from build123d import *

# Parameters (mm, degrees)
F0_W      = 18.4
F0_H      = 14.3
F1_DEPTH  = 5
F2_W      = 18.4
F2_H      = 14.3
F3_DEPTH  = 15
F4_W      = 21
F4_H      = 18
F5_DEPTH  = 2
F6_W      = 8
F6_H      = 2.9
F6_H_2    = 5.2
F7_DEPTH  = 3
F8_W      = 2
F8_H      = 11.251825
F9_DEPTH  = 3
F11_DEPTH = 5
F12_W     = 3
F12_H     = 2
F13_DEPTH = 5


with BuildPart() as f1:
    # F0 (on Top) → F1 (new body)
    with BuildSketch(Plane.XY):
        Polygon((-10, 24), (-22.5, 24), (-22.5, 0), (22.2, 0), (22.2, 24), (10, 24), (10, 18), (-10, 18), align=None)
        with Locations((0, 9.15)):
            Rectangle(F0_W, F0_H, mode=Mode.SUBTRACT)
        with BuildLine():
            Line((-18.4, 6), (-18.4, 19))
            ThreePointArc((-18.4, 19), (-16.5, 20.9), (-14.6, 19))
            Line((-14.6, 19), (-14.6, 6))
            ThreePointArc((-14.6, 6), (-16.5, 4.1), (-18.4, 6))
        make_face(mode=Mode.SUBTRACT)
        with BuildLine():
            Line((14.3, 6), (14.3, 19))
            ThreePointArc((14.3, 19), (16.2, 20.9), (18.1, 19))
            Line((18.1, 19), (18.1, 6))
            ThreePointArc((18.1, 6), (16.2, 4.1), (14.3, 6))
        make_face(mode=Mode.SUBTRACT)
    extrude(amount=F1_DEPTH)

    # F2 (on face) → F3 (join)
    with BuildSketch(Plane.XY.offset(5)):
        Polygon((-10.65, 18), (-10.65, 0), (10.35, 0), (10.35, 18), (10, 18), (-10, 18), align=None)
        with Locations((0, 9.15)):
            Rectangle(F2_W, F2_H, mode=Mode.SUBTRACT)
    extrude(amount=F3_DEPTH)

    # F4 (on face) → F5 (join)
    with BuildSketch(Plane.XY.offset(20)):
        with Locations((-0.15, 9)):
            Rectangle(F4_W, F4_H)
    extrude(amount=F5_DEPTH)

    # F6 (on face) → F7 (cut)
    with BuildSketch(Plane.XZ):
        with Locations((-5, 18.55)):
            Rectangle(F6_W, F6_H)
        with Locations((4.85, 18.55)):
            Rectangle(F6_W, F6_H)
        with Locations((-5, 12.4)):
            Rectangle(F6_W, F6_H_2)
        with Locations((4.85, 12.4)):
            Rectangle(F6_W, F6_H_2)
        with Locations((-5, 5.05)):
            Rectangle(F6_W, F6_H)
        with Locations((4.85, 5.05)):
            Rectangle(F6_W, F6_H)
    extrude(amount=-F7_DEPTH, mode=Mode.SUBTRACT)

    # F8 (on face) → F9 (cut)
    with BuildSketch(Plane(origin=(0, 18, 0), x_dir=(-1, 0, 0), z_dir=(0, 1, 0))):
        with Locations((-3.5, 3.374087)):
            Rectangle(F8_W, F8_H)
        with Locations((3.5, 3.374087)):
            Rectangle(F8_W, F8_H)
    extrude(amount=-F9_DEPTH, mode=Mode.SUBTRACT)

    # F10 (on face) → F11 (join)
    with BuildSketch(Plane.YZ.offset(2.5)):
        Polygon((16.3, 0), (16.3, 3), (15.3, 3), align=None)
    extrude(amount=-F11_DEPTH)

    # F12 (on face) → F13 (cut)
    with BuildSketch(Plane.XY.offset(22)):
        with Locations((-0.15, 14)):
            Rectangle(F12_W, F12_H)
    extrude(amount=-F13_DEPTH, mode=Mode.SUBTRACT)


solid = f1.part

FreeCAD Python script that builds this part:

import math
import FreeCAD as App
import Part
import Sketcher
Q = App.Units.Quantity

doc = App.newDocument("Part")
body = doc.addObject("PartDesign::Body", "Body")

# Sketch on XY plane
sketch1 = doc.addObject("Sketcher::SketchObject", "Sketch")
body.addObject(sketch1)
sketch1.AttachmentSupport = (doc.XY_Plane, [""])
sketch1.MapMode = "FlatFace"
sketch1.addGeometry([
    Part.LineSegment(App.Vector(-10, 24, 0), App.Vector(-22.5, 24, 0)),  # 0
    Part.LineSegment(App.Vector(-22.5, 24, 0), App.Vector(-22.5, 0, 0)),  # 1
    Part.LineSegment(App.Vector(-22.5, 0, 0), App.Vector(22.2, 0, 0)),  # 2
    Part.LineSegment(App.Vector(22.2, 0, 0), App.Vector(22.2, 24, 0)),  # 3
    Part.LineSegment(App.Vector(22.2, 24, 0), App.Vector(10, 24, 0)),  # 4
    Part.LineSegment(App.Vector(10, 24, 0), App.Vector(10, 18, 0)),  # 5
    Part.LineSegment(App.Vector(10, 18, 0), App.Vector(-10, 18, 0)),  # 6
    Part.LineSegment(App.Vector(-10, 18, 0), App.Vector(-10, 24, 0)),  # 7
    Part.LineSegment(App.Vector(9.2, 2, 0), App.Vector(-9.2, 2, 0)),  # 8
    Part.LineSegment(App.Vector(-9.2, 2, 0), App.Vector(-9.2, 16.3, 0)),  # 9
    Part.LineSegment(App.Vector(-9.2, 16.3, 0), App.Vector(9.2, 16.3, 0)),  # 10
    Part.LineSegment(App.Vector(9.2, 16.3, 0), App.Vector(9.2, 2, 0)),  # 11
    Part.ArcOfCircle(Part.Circle(App.Vector(-16.5, 6, 0), App.Vector(0, 0, 1), 1.9), math.radians(180), math.radians(360)),  # 12
    Part.LineSegment(App.Vector(-18.4, 6, 0), App.Vector(-18.4, 19, 0)),  # 13
    Part.ArcOfCircle(Part.Circle(App.Vector(-16.5, 19, 0), App.Vector(0, 0, 1), 1.9), math.radians(0), math.radians(180)),  # 14
    Part.LineSegment(App.Vector(-14.6, 19, 0), App.Vector(-14.6, 6, 0)),  # 15
    Part.ArcOfCircle(Part.Circle(App.Vector(16.2, 6, 0), App.Vector(0, 0, 1), 1.9), math.radians(180), math.radians(360)),  # 16
    Part.LineSegment(App.Vector(14.3, 6, 0), App.Vector(14.3, 19, 0)),  # 17
    Part.ArcOfCircle(Part.Circle(App.Vector(16.2, 19, 0), App.Vector(0, 0, 1), 1.9), math.radians(0), math.radians(180)),  # 18
    Part.LineSegment(App.Vector(18.1, 19, 0), App.Vector(18.1, 6, 0)),  # 19
], False)
sketch1.addConstraint([
    Sketcher.Constraint("Coincident", 0, 2, 1, 1),
    Sketcher.Constraint("Coincident", 1, 2, 2, 1),
    Sketcher.Constraint("Coincident", 2, 2, 3, 1),
    Sketcher.Constraint("Coincident", 3, 2, 4, 1),
    Sketcher.Constraint("Coincident", 4, 2, 5, 1),
    Sketcher.Constraint("Coincident", 5, 2, 6, 1),
    Sketcher.Constraint("Coincident", 6, 2, 7, 1),
    Sketcher.Constraint("Coincident", 7, 2, 0, 1),
    Sketcher.Constraint("Coincident", 8, 2, 9, 1),
    Sketcher.Constraint("Coincident", 9, 2, 10, 1),
    Sketcher.Constraint("Coincident", 10, 2, 11, 1),
    Sketcher.Constraint("Coincident", 11, 2, 8, 1),
    Sketcher.Constraint("Tangent", 12, 1, 13, 1),
    Sketcher.Constraint("Tangent", 13, 2, 14, 2),
    Sketcher.Constraint("Tangent", 14, 1, 15, 1),
    Sketcher.Constraint("Tangent", 15, 2, 12, 2),
    Sketcher.Constraint("Tangent", 16, 1, 17, 1),
    Sketcher.Constraint("Tangent", 17, 2, 18, 2),
    Sketcher.Constraint("Tangent", 18, 1, 19, 1),
    Sketcher.Constraint("Tangent", 19, 2, 16, 2),
    Sketcher.Constraint("Horizontal", 0),
    Sketcher.Constraint("Vertical", 1),
    Sketcher.Constraint("Horizontal", 2),
    Sketcher.Constraint("Vertical", 3),
    Sketcher.Constraint("Horizontal", 4),
    Sketcher.Constraint("Vertical", 5),
    Sketcher.Constraint("Horizontal", 6),
    Sketcher.Constraint("Vertical", 7),
    Sketcher.Constraint("Horizontal", 8),
    Sketcher.Constraint("Vertical", 9),
    Sketcher.Constraint("Horizontal", 10),
    Sketcher.Constraint("Vertical", 11),
    Sketcher.Constraint("Vertical", 13),
    Sketcher.Constraint("Vertical", 15),
    Sketcher.Constraint("Vertical", 17),
    Sketcher.Constraint("Vertical", 19),
    Sketcher.Constraint("Equal", 14, 16),
    Sketcher.Constraint("Symmetric", 4, 2, 7, 2, -2),
    Sketcher.Constraint("PointOnObject", 1, 2, -1),
    Sketcher.Constraint("Horizontal", 12, 3, 16, 3),
    Sketcher.Constraint("Horizontal", 14, 3, 18, 3),
    Sketcher.Constraint("Radius", 12, Q("1.9 mm")),
    Sketcher.Constraint("DistanceX", 6, 2, 6, 1, Q("20 mm")),
    Sketcher.Constraint("DistanceY", 1, 2, 1, 1, Q("24 mm")),
    Sketcher.Constraint("DistanceY", 5, 2, 5, 1, Q("6 mm")),
    Sketcher.Constraint("DistanceY", 13, 1, 13, 2, Q("13 mm")),
    Sketcher.Constraint("DistanceX", 0, 2, 0, 1, Q("12.5 mm")),
    Sketcher.Constraint("DistanceX", 2, 1, 2, 2, Q("44.7 mm")),
    Sketcher.Constraint("DistanceX", 8, 2, 8, 1, Q("18.4 mm")),
    Sketcher.Constraint("DistanceY", 9, 1, 9, 2, Q("14.3 mm")),
    Sketcher.Constraint("DistanceY", -1, 1, 12, 3, Q("6 mm")),
    Sketcher.Constraint("DistanceY", -1, 1, 8, 2, Q("2 mm")),
    Sketcher.Constraint("DistanceX", 0, 2, 14, 3, Q("6 mm")),
    Sketcher.Constraint("DistanceX", 16, 3, 2, 2, Q("6 mm")),
    Sketcher.Constraint("DistanceX", 10, 2, 18, 3, Q("7 mm")),
])
pad1 = doc.addObject("PartDesign::Pad", "Pad")
body.addObject(pad1)
pad1.Profile = sketch1
pad1.Length = 5

# Sketch on XY plane
sketch2 = doc.addObject("Sketcher::SketchObject", "Sketch001")
body.addObject(sketch2)
sketch2.AttachmentSupport = (doc.XY_Plane, [""])
sketch2.MapMode = "FlatFace"
sketch2.AttachmentOffset = App.Placement(App.Vector(0, 0, 5), App.Rotation())
sketch2.addGeometry([
    Part.LineSegment(App.Vector(-11, 18, 0), App.Vector(-11, 0, 0)),  # 0
    Part.LineSegment(App.Vector(-11, 0, 0), App.Vector(10, 0, 0)),  # 1
    Part.LineSegment(App.Vector(10, 0, 0), App.Vector(10, 18, 0)),  # 2
    Part.LineSegment(App.Vector(10, 18, 0), App.Vector(-11, 18, 0)),  # 3
    Part.LineSegment(App.Vector(9, 2, 0), App.Vector(-9, 2, 0)),  # 4
    Part.LineSegment(App.Vector(-9, 2, 0), App.Vector(-9, 16, 0)),  # 5
    Part.LineSegment(App.Vector(-9, 16, 0), App.Vector(9, 16, 0)),  # 6
    Part.LineSegment(App.Vector(9, 16, 0), App.Vector(9, 2, 0)),  # 7
], False)
sketch2.addConstraint([
    Sketcher.Constraint("Coincident", 0, 2, 1, 1),
    Sketcher.Constraint("Coincident", 1, 2, 2, 1),
    Sketcher.Constraint("Coincident", 2, 2, 3, 1),
    Sketcher.Constraint("Coincident", 3, 2, 0, 1),
    Sketcher.Constraint("Coincident", 4, 2, 5, 1),
    Sketcher.Constraint("Coincident", 5, 2, 6, 1),
    Sketcher.Constraint("Coincident", 6, 2, 7, 1),
    Sketcher.Constraint("Coincident", 7, 2, 4, 1),
    Sketcher.Constraint("Vertical", 0),
    Sketcher.Constraint("Horizontal", 1),
    Sketcher.Constraint("Vertical", 2),
    Sketcher.Constraint("Horizontal", 3),
    Sketcher.Constraint("Horizontal", 4),
    Sketcher.Constraint("Vertical", 5),
    Sketcher.Constraint("Horizontal", 6),
    Sketcher.Constraint("Vertical", 7),
    Sketcher.Constraint("PointOnObject", 0, 2, -1),
    Sketcher.Constraint("DistanceX", 1, 1, 1, 2, Q("21 mm")),
    Sketcher.Constraint("DistanceY", 0, 2, 0, 1, Q("18 mm")),
    Sketcher.Constraint("DistanceX", 4, 2, 4, 1, Q("18.4 mm")),
    Sketcher.Constraint("DistanceY", 5, 1, 5, 2, Q("14.3 mm")),
    Sketcher.Constraint("DistanceY", -1, 1, 4, 2, Q("2 mm")),
    Sketcher.Constraint("DistanceX", 4, 2, -1, 1, Q("9.2 mm")),
    Sketcher.Constraint("DistanceX", 0, 2, -1, 1, Q("10.65 mm")),
])
pad2 = doc.addObject("PartDesign::Pad", "Pad001")
body.addObject(pad2)
pad2.Profile = sketch2
pad2.Length = 15

# Sketch on XY plane
sketch3 = doc.addObject("Sketcher::SketchObject", "Sketch002")
body.addObject(sketch3)
sketch3.AttachmentSupport = (doc.XY_Plane, [""])
sketch3.MapMode = "FlatFace"
sketch3.AttachmentOffset = App.Placement(App.Vector(0, 0, 20), App.Rotation())
sketch3.addGeometry([
    Part.LineSegment(App.Vector(-11, 18, 0), App.Vector(-11, 0, 0)),
    Part.LineSegment(App.Vector(-11, 0, 0), App.Vector(10, 0, 0)),
    Part.LineSegment(App.Vector(10, 0, 0), App.Vector(10, 18, 0)),
    Part.LineSegment(App.Vector(10, 18, 0), App.Vector(-11, 18, 0)),
], False)
sketch3.addConstraint([
    Sketcher.Constraint("Coincident", 0, 2, 1, 1),
    Sketcher.Constraint("Coincident", 1, 2, 2, 1),
    Sketcher.Constraint("Coincident", 2, 2, 3, 1),
    Sketcher.Constraint("Coincident", 3, 2, 0, 1),
    Sketcher.Constraint("Vertical", 0),
    Sketcher.Constraint("Horizontal", 1),
    Sketcher.Constraint("Vertical", 2),
    Sketcher.Constraint("Horizontal", 3),
    Sketcher.Constraint("PointOnObject", 0, 2, -1),
    Sketcher.Constraint("DistanceX", 1, 1, 1, 2, Q("21 mm")),
    Sketcher.Constraint("DistanceY", 0, 2, 0, 1, Q("18 mm")),
    Sketcher.Constraint("DistanceX", 0, 2, -1, 1, Q("10.65 mm")),
])
pad3 = doc.addObject("PartDesign::Pad", "Pad002")
body.addObject(pad3)
pad3.Profile = sketch3
pad3.Length = 2

# Sketch on XZ plane
sketch4 = doc.addObject("Sketcher::SketchObject", "Sketch003")
body.addObject(sketch4)
sketch4.AttachmentSupport = (doc.XZ_Plane, [""])
sketch4.MapMode = "FlatFace"
sketch4.addGeometry([
    Part.LineSegment(App.Vector(-9, 20, 0), App.Vector(-9, 17.1, 0)),  # 0
    Part.LineSegment(App.Vector(-9, 17.1, 0), App.Vector(-1, 17.1, 0)),  # 1
    Part.LineSegment(App.Vector(-1, 17.1, 0), App.Vector(-1, 20, 0)),  # 2
    Part.LineSegment(App.Vector(-1, 20, 0), App.Vector(-9, 20, 0)),  # 3
    Part.LineSegment(App.Vector(0.8, 20, 0), App.Vector(0.8, 17.1, 0)),  # 4
    Part.LineSegment(App.Vector(0.8, 17.1, 0), App.Vector(8.8, 17.1, 0)),  # 5
    Part.LineSegment(App.Vector(8.8, 17.1, 0), App.Vector(8.8, 20, 0)),  # 6
    Part.LineSegment(App.Vector(8.8, 20, 0), App.Vector(0.8, 20, 0)),  # 7
    Part.LineSegment(App.Vector(-9, 15, 0), App.Vector(-9, 9.8, 0)),  # 8
    Part.LineSegment(App.Vector(-9, 9.8, 0), App.Vector(-1, 9.8, 0)),  # 9
    Part.LineSegment(App.Vector(-1, 9.8, 0), App.Vector(-1, 15, 0)),  # 10
    Part.LineSegment(App.Vector(-1, 15, 0), App.Vector(-9, 15, 0)),  # 11
    Part.LineSegment(App.Vector(0.8, 15, 0), App.Vector(0.8, 9.8, 0)),  # 12
    Part.LineSegment(App.Vector(0.8, 9.8, 0), App.Vector(8.8, 9.8, 0)),  # 13
    Part.LineSegment(App.Vector(8.8, 9.8, 0), App.Vector(8.8, 15, 0)),  # 14
    Part.LineSegment(App.Vector(8.8, 15, 0), App.Vector(0.8, 15, 0)),  # 15
    Part.LineSegment(App.Vector(-9, 6.5, 0), App.Vector(-9, 3.6, 0)),  # 16
    Part.LineSegment(App.Vector(-9, 3.6, 0), App.Vector(-1, 3.6, 0)),  # 17
    Part.LineSegment(App.Vector(-1, 3.6, 0), App.Vector(-1, 6.5, 0)),  # 18
    Part.LineSegment(App.Vector(-1, 6.5, 0), App.Vector(-9, 6.5, 0)),  # 19
    Part.LineSegment(App.Vector(0.8, 6.5, 0), App.Vector(0.8, 3.6, 0)),  # 20
    Part.LineSegment(App.Vector(0.8, 3.6, 0), App.Vector(8.8, 3.6, 0)),  # 21
    Part.LineSegment(App.Vector(8.8, 3.6, 0), App.Vector(8.8, 6.5, 0)),  # 22
    Part.LineSegment(App.Vector(8.8, 6.5, 0), App.Vector(0.8, 6.5, 0)),  # 23
], False)
sketch4.addConstraint([
    Sketcher.Constraint("Coincident", 0, 2, 1, 1),
    Sketcher.Constraint("Coincident", 1, 2, 2, 1),
    Sketcher.Constraint("Coincident", 2, 2, 3, 1),
    Sketcher.Constraint("Coincident", 3, 2, 0, 1),
    Sketcher.Constraint("Coincident", 4, 2, 5, 1),
    Sketcher.Constraint("Coincident", 5, 2, 6, 1),
    Sketcher.Constraint("Coincident", 6, 2, 7, 1),
    Sketcher.Constraint("Coincident", 7, 2, 4, 1),
    Sketcher.Constraint("Coincident", 8, 2, 9, 1),
    Sketcher.Constraint("Coincident", 9, 2, 10, 1),
    Sketcher.Constraint("Coincident", 10, 2, 11, 1),
    Sketcher.Constraint("Coincident", 11, 2, 8, 1),
    Sketcher.Constraint("Coincident", 12, 2, 13, 1),
    Sketcher.Constraint("Coincident", 13, 2, 14, 1),
    Sketcher.Constraint("Coincident", 14, 2, 15, 1),
    Sketcher.Constraint("Coincident", 15, 2, 12, 1),
    Sketcher.Constraint("Coincident", 16, 2, 17, 1),
    Sketcher.Constraint("Coincident", 17, 2, 18, 1),
    Sketcher.Constraint("Coincident", 18, 2, 19, 1),
    Sketcher.Constraint("Coincident", 19, 2, 16, 1),
    Sketcher.Constraint("Coincident", 20, 2, 21, 1),
    Sketcher.Constraint("Coincident", 21, 2, 22, 1),
    Sketcher.Constraint("Coincident", 22, 2, 23, 1),
    Sketcher.Constraint("Coincident", 23, 2, 20, 1),
    Sketcher.Constraint("Vertical", 0),
    Sketcher.Constraint("Horizontal", 1),
    Sketcher.Constraint("Vertical", 2),
    Sketcher.Constraint("Horizontal", 3),
    Sketcher.Constraint("Vertical", 4),
    Sketcher.Constraint("Horizontal", 5),
    Sketcher.Constraint("Vertical", 6),
    Sketcher.Constraint("Horizontal", 7),
    Sketcher.Constraint("Vertical", 8),
    Sketcher.Constraint("Horizontal", 9),
    Sketcher.Constraint("Vertical", 10),
    Sketcher.Constraint("Horizontal", 11),
    Sketcher.Constraint("Vertical", 12),
    Sketcher.Constraint("Horizontal", 13),
    Sketcher.Constraint("Vertical", 14),
    Sketcher.Constraint("Horizontal", 15),
    Sketcher.Constraint("Vertical", 16),
    Sketcher.Constraint("Horizontal", 17),
    Sketcher.Constraint("Vertical", 18),
    Sketcher.Constraint("Horizontal", 19),
    Sketcher.Constraint("Vertical", 20),
    Sketcher.Constraint("Horizontal", 21),
    Sketcher.Constraint("Vertical", 22),
    Sketcher.Constraint("Horizontal", 23),
    Sketcher.Constraint("Horizontal", 1, 2, 4, 2),
    Sketcher.Constraint("Horizontal", 3, 2, 6, 2),
    Sketcher.Constraint("Horizontal", 9, 2, 12, 2),
    Sketcher.Constraint("Horizontal", 11, 2, 14, 2),
    Sketcher.Constraint("Horizontal", 17, 2, 20, 2),
    Sketcher.Constraint("Horizontal", 19, 2, 22, 2),
    Sketcher.Constraint("Vertical", 3, 2, 8, 2),
    Sketcher.Constraint("Vertical", 2, 2, 9, 2),
    Sketcher.Constraint("Vertical", 7, 2, 12, 2),
    Sketcher.Constraint("Vertical", 6, 2, 13, 2),
    Sketcher.Constraint("Vertical", 11, 2, 16, 2),
    Sketcher.Constraint("Vertical", 10, 2, 17, 2),
    Sketcher.Constraint("Vertical", 15, 2, 20, 2),
    Sketcher.Constraint("Vertical", 14, 2, 21, 2),
    Sketcher.Constraint("Equal", 3, 5),
    Sketcher.Constraint("Equal", 6, 16),
    Sketcher.Constraint("DistanceX", 1, 1, 1, 2, Q("8 mm")),
    Sketcher.Constraint("DistanceY", 0, 2, 0, 1, Q("2.9 mm")),
    Sketcher.Constraint("DistanceY", 8, 2, 8, 1, Q("5.2 mm")),
    Sketcher.Constraint("DistanceX", 0, 2, -1, 1, Q("9 mm")),
    Sketcher.Constraint("DistanceY", -1, 1, 2, 2, Q("20 mm")),
    Sketcher.Constraint("DistanceY", -1, 1, 10, 2, Q("15 mm")),
    Sketcher.Constraint("DistanceY", -1, 1, 16, 2, Q("3.6 mm")),
    Sketcher.Constraint("DistanceX", -1, 1, 4, 2, Q("0.85 mm")),
])
pocket1 = doc.addObject("PartDesign::Pocket", "Pocket")
body.addObject(pocket1)
pocket1.Profile = sketch4
pocket1.Length = 3

# Sketch on XZ plane
sketch5 = doc.addObject("Sketcher::SketchObject", "Sketch004")
body.addObject(sketch5)
sketch5.AttachmentSupport = (doc.XZ_Plane, [""])
sketch5.MapMode = "FlatFace"
sketch5.AttachmentOffset = App.Placement(App.Vector(0, 0, -18), App.Rotation())
sketch5.addGeometry([
    Part.LineSegment(App.Vector(4.5, 9, 0), App.Vector(4.5, -2.3, 0)),  # 0
    Part.LineSegment(App.Vector(4.5, -2.3, 0), App.Vector(2.5, -2.3, 0)),  # 1
    Part.LineSegment(App.Vector(2.5, -2.3, 0), App.Vector(2.5, 9, 0)),  # 2
    Part.LineSegment(App.Vector(2.5, 9, 0), App.Vector(4.5, 9, 0)),  # 3
    Part.LineSegment(App.Vector(-2.5, 9, 0), App.Vector(-2.5, -2.3, 0)),  # 4
    Part.LineSegment(App.Vector(-2.5, -2.3, 0), App.Vector(-4.5, -2.3, 0)),  # 5
    Part.LineSegment(App.Vector(-4.5, -2.3, 0), App.Vector(-4.5, 9, 0)),  # 6
    Part.LineSegment(App.Vector(-4.5, 9, 0), App.Vector(-2.5, 9, 0)),  # 7
], False)
sketch5.addConstraint([
    Sketcher.Constraint("Coincident", 0, 2, 1, 1),
    Sketcher.Constraint("Coincident", 1, 2, 2, 1),
    Sketcher.Constraint("Coincident", 2, 2, 3, 1),
    Sketcher.Constraint("Coincident", 3, 2, 0, 1),
    Sketcher.Constraint("Coincident", 4, 2, 5, 1),
    Sketcher.Constraint("Coincident", 5, 2, 6, 1),
    Sketcher.Constraint("Coincident", 6, 2, 7, 1),
    Sketcher.Constraint("Coincident", 7, 2, 4, 1),
    Sketcher.Constraint("Vertical", 0),
    Sketcher.Constraint("Horizontal", 1),
    Sketcher.Constraint("Vertical", 2),
    Sketcher.Constraint("Horizontal", 3),
    Sketcher.Constraint("Vertical", 4),
    Sketcher.Constraint("Horizontal", 5),
    Sketcher.Constraint("Vertical", 6),
    Sketcher.Constraint("Horizontal", 7),
    Sketcher.Constraint("Symmetric", 1, 2, 4, 2, -2),
    Sketcher.Constraint("Symmetric", 3, 2, 6, 2, -2),
    Sketcher.Constraint("DistanceX", 1, 2, 1, 1, Q("2 mm")),
    Sketcher.Constraint("DistanceY", -1, 1, 2, 2, Q("8.999999 mm")),
    Sketcher.Constraint("DistanceX", 4, 2, 1, 2, Q("5 mm")),
    Sketcher.Constraint("DistanceY", 0, 2, 0, 1, Q("11.251825 mm")),
])
pocket2 = doc.addObject("PartDesign::Pocket", "Pocket001")
body.addObject(pocket2)
pocket2.Profile = sketch5
pocket2.Length = 3
pocket2.Reversed = True

# Sketch on YZ plane
sketch6 = doc.addObject("Sketcher::SketchObject", "Sketch005")
body.addObject(sketch6)
sketch6.AttachmentSupport = (doc.YZ_Plane, [""])
sketch6.MapMode = "FlatFace"
sketch6.AttachmentOffset = App.Placement(App.Vector(0, 0, 2.5), App.Rotation())
sketch6.addGeometry([
    Part.LineSegment(App.Vector(16.3, 0, 0), App.Vector(16.3, 3, 0)),
    Part.LineSegment(App.Vector(16.3, 3, 0), App.Vector(15.3, 3, 0)),
    Part.LineSegment(App.Vector(15.3, 3, 0), App.Vector(16.3, 0, 0)),
], False)
sketch6.addConstraint([
    Sketcher.Constraint("Coincident", 0, 2, 1, 1),
    Sketcher.Constraint("Coincident", 1, 2, 2, 1),
    Sketcher.Constraint("Coincident", 2, 2, 0, 1),
    Sketcher.Constraint("Vertical", 0),
    Sketcher.Constraint("Horizontal", 1),
    Sketcher.Constraint("PointOnObject", 2, 2, -1),
    Sketcher.Constraint("DistanceX", 1, 2, 1, 1, Q("1 mm")),
    Sketcher.Constraint("DistanceY", 0, 1, 0, 2, Q("3 mm")),
    Sketcher.Constraint("DistanceX", -1, 1, 0, 2, Q("16.3 mm")),
])
pad4 = doc.addObject("PartDesign::Pad", "Pad003")
body.addObject(pad4)
pad4.Profile = sketch6
pad4.Length = 5
pad4.Reversed = True

# Sketch on XY plane
sketch7 = doc.addObject("Sketcher::SketchObject", "Sketch006")
body.addObject(sketch7)
sketch7.AttachmentSupport = (doc.XY_Plane, [""])
sketch7.MapMode = "FlatFace"
sketch7.AttachmentOffset = App.Placement(App.Vector(0, 0, 22), App.Rotation())
sketch7.addGeometry([
    Part.LineSegment(App.Vector(-1.6, 15, 0), App.Vector(-1.6, 13, 0)),
    Part.LineSegment(App.Vector(-1.6, 13, 0), App.Vector(1.4, 13, 0)),
    Part.LineSegment(App.Vector(1.4, 13, 0), App.Vector(1.4, 15, 0)),
    Part.LineSegment(App.Vector(1.4, 15, 0), App.Vector(-1.6, 15, 0)),
], False)
sketch7.addConstraint([
    Sketcher.Constraint("Coincident", 0, 2, 1, 1),
    Sketcher.Constraint("Coincident", 1, 2, 2, 1),
    Sketcher.Constraint("Coincident", 2, 2, 3, 1),
    Sketcher.Constraint("Coincident", 3, 2, 0, 1),
    Sketcher.Constraint("Vertical", 0),
    Sketcher.Constraint("Horizontal", 1),
    Sketcher.Constraint("Vertical", 2),
    Sketcher.Constraint("Horizontal", 3),
    Sketcher.Constraint("DistanceX", 1, 1, 1, 2, Q("3 mm")),
    Sketcher.Constraint("DistanceY", 0, 2, 0, 1, Q("2 mm")),
    Sketcher.Constraint("DistanceY", -1, 1, 0, 2, Q("13 mm")),
    Sketcher.Constraint("DistanceX", 0, 2, -1, 1, Q("1.65 mm")),
])
pocket3 = doc.addObject("PartDesign::Pocket", "Pocket002")
body.addObject(pocket3)
pocket3.Profile = sketch7
pocket3.Length = 5

doc.recompute()
